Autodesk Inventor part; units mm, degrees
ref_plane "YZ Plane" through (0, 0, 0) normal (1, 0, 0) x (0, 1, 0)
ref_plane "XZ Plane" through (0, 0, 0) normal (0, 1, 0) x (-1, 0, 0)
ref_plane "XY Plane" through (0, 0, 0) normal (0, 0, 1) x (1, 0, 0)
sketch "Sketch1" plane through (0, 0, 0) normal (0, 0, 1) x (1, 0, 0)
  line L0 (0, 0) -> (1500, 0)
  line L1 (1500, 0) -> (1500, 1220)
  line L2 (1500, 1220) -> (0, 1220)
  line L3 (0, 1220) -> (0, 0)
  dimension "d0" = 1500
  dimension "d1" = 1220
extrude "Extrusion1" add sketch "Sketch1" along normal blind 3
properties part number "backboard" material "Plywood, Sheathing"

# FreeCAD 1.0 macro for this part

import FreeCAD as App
import Part
import Sketcher
from FreeCAD import Vector
Q = App.Units.Quantity


def add_polygon(sketch, points):
    """Adds a closed chain of lines whose ends are joined by coincident constraints."""
    first, n = sketch.GeometryCount, len(points)
    for a, b in zip(points, points[1:] + points[:1]):
        sketch.addGeometry(Part.LineSegment(App.Vector(*a, 0), App.Vector(*b, 0)), False)
    for i in range(n):
        sketch.addConstraint(Sketcher.Constraint("Coincident", first + i, 2, first + (i + 1) % n, 1))

doc = App.newDocument("Part")
body = doc.addObject("PartDesign::Body", "Body")

# Sketch on XY plane
sketch1 = body.newObject("Sketcher::SketchObject", "Sketch")
sketch1.AttachmentSupport = (doc.getObject("XY_Plane"), [""])
sketch1.MapMode = "FlatFace"
add_polygon(sketch1, [(0, 1220), (0, 0), (1500, 0), (1500, 1220)])  # lines 0-3
sketch1.addConstraint(Sketcher.Constraint("Vertical", 0))
sketch1.addConstraint(Sketcher.Constraint("Horizontal", 1))
sketch1.addConstraint(Sketcher.Constraint("Vertical", 2))
sketch1.addConstraint(Sketcher.Constraint("Horizontal", 3))
sketch1.addConstraint(Sketcher.Constraint("Coincident", 0, 2, -1, 1))
sketch1.addConstraint(Sketcher.Constraint("DistanceX", 1, 1, 1, 2, Q("1500 mm")))
sketch1.addConstraint(Sketcher.Constraint("DistanceY", 0, 2, 0, 1, Q("1220 mm")))
pad1 = body.newObject("PartDesign::Pad", "Pad")
pad1.Profile = sketch1
pad1.Length = 3

doc.recompute()
